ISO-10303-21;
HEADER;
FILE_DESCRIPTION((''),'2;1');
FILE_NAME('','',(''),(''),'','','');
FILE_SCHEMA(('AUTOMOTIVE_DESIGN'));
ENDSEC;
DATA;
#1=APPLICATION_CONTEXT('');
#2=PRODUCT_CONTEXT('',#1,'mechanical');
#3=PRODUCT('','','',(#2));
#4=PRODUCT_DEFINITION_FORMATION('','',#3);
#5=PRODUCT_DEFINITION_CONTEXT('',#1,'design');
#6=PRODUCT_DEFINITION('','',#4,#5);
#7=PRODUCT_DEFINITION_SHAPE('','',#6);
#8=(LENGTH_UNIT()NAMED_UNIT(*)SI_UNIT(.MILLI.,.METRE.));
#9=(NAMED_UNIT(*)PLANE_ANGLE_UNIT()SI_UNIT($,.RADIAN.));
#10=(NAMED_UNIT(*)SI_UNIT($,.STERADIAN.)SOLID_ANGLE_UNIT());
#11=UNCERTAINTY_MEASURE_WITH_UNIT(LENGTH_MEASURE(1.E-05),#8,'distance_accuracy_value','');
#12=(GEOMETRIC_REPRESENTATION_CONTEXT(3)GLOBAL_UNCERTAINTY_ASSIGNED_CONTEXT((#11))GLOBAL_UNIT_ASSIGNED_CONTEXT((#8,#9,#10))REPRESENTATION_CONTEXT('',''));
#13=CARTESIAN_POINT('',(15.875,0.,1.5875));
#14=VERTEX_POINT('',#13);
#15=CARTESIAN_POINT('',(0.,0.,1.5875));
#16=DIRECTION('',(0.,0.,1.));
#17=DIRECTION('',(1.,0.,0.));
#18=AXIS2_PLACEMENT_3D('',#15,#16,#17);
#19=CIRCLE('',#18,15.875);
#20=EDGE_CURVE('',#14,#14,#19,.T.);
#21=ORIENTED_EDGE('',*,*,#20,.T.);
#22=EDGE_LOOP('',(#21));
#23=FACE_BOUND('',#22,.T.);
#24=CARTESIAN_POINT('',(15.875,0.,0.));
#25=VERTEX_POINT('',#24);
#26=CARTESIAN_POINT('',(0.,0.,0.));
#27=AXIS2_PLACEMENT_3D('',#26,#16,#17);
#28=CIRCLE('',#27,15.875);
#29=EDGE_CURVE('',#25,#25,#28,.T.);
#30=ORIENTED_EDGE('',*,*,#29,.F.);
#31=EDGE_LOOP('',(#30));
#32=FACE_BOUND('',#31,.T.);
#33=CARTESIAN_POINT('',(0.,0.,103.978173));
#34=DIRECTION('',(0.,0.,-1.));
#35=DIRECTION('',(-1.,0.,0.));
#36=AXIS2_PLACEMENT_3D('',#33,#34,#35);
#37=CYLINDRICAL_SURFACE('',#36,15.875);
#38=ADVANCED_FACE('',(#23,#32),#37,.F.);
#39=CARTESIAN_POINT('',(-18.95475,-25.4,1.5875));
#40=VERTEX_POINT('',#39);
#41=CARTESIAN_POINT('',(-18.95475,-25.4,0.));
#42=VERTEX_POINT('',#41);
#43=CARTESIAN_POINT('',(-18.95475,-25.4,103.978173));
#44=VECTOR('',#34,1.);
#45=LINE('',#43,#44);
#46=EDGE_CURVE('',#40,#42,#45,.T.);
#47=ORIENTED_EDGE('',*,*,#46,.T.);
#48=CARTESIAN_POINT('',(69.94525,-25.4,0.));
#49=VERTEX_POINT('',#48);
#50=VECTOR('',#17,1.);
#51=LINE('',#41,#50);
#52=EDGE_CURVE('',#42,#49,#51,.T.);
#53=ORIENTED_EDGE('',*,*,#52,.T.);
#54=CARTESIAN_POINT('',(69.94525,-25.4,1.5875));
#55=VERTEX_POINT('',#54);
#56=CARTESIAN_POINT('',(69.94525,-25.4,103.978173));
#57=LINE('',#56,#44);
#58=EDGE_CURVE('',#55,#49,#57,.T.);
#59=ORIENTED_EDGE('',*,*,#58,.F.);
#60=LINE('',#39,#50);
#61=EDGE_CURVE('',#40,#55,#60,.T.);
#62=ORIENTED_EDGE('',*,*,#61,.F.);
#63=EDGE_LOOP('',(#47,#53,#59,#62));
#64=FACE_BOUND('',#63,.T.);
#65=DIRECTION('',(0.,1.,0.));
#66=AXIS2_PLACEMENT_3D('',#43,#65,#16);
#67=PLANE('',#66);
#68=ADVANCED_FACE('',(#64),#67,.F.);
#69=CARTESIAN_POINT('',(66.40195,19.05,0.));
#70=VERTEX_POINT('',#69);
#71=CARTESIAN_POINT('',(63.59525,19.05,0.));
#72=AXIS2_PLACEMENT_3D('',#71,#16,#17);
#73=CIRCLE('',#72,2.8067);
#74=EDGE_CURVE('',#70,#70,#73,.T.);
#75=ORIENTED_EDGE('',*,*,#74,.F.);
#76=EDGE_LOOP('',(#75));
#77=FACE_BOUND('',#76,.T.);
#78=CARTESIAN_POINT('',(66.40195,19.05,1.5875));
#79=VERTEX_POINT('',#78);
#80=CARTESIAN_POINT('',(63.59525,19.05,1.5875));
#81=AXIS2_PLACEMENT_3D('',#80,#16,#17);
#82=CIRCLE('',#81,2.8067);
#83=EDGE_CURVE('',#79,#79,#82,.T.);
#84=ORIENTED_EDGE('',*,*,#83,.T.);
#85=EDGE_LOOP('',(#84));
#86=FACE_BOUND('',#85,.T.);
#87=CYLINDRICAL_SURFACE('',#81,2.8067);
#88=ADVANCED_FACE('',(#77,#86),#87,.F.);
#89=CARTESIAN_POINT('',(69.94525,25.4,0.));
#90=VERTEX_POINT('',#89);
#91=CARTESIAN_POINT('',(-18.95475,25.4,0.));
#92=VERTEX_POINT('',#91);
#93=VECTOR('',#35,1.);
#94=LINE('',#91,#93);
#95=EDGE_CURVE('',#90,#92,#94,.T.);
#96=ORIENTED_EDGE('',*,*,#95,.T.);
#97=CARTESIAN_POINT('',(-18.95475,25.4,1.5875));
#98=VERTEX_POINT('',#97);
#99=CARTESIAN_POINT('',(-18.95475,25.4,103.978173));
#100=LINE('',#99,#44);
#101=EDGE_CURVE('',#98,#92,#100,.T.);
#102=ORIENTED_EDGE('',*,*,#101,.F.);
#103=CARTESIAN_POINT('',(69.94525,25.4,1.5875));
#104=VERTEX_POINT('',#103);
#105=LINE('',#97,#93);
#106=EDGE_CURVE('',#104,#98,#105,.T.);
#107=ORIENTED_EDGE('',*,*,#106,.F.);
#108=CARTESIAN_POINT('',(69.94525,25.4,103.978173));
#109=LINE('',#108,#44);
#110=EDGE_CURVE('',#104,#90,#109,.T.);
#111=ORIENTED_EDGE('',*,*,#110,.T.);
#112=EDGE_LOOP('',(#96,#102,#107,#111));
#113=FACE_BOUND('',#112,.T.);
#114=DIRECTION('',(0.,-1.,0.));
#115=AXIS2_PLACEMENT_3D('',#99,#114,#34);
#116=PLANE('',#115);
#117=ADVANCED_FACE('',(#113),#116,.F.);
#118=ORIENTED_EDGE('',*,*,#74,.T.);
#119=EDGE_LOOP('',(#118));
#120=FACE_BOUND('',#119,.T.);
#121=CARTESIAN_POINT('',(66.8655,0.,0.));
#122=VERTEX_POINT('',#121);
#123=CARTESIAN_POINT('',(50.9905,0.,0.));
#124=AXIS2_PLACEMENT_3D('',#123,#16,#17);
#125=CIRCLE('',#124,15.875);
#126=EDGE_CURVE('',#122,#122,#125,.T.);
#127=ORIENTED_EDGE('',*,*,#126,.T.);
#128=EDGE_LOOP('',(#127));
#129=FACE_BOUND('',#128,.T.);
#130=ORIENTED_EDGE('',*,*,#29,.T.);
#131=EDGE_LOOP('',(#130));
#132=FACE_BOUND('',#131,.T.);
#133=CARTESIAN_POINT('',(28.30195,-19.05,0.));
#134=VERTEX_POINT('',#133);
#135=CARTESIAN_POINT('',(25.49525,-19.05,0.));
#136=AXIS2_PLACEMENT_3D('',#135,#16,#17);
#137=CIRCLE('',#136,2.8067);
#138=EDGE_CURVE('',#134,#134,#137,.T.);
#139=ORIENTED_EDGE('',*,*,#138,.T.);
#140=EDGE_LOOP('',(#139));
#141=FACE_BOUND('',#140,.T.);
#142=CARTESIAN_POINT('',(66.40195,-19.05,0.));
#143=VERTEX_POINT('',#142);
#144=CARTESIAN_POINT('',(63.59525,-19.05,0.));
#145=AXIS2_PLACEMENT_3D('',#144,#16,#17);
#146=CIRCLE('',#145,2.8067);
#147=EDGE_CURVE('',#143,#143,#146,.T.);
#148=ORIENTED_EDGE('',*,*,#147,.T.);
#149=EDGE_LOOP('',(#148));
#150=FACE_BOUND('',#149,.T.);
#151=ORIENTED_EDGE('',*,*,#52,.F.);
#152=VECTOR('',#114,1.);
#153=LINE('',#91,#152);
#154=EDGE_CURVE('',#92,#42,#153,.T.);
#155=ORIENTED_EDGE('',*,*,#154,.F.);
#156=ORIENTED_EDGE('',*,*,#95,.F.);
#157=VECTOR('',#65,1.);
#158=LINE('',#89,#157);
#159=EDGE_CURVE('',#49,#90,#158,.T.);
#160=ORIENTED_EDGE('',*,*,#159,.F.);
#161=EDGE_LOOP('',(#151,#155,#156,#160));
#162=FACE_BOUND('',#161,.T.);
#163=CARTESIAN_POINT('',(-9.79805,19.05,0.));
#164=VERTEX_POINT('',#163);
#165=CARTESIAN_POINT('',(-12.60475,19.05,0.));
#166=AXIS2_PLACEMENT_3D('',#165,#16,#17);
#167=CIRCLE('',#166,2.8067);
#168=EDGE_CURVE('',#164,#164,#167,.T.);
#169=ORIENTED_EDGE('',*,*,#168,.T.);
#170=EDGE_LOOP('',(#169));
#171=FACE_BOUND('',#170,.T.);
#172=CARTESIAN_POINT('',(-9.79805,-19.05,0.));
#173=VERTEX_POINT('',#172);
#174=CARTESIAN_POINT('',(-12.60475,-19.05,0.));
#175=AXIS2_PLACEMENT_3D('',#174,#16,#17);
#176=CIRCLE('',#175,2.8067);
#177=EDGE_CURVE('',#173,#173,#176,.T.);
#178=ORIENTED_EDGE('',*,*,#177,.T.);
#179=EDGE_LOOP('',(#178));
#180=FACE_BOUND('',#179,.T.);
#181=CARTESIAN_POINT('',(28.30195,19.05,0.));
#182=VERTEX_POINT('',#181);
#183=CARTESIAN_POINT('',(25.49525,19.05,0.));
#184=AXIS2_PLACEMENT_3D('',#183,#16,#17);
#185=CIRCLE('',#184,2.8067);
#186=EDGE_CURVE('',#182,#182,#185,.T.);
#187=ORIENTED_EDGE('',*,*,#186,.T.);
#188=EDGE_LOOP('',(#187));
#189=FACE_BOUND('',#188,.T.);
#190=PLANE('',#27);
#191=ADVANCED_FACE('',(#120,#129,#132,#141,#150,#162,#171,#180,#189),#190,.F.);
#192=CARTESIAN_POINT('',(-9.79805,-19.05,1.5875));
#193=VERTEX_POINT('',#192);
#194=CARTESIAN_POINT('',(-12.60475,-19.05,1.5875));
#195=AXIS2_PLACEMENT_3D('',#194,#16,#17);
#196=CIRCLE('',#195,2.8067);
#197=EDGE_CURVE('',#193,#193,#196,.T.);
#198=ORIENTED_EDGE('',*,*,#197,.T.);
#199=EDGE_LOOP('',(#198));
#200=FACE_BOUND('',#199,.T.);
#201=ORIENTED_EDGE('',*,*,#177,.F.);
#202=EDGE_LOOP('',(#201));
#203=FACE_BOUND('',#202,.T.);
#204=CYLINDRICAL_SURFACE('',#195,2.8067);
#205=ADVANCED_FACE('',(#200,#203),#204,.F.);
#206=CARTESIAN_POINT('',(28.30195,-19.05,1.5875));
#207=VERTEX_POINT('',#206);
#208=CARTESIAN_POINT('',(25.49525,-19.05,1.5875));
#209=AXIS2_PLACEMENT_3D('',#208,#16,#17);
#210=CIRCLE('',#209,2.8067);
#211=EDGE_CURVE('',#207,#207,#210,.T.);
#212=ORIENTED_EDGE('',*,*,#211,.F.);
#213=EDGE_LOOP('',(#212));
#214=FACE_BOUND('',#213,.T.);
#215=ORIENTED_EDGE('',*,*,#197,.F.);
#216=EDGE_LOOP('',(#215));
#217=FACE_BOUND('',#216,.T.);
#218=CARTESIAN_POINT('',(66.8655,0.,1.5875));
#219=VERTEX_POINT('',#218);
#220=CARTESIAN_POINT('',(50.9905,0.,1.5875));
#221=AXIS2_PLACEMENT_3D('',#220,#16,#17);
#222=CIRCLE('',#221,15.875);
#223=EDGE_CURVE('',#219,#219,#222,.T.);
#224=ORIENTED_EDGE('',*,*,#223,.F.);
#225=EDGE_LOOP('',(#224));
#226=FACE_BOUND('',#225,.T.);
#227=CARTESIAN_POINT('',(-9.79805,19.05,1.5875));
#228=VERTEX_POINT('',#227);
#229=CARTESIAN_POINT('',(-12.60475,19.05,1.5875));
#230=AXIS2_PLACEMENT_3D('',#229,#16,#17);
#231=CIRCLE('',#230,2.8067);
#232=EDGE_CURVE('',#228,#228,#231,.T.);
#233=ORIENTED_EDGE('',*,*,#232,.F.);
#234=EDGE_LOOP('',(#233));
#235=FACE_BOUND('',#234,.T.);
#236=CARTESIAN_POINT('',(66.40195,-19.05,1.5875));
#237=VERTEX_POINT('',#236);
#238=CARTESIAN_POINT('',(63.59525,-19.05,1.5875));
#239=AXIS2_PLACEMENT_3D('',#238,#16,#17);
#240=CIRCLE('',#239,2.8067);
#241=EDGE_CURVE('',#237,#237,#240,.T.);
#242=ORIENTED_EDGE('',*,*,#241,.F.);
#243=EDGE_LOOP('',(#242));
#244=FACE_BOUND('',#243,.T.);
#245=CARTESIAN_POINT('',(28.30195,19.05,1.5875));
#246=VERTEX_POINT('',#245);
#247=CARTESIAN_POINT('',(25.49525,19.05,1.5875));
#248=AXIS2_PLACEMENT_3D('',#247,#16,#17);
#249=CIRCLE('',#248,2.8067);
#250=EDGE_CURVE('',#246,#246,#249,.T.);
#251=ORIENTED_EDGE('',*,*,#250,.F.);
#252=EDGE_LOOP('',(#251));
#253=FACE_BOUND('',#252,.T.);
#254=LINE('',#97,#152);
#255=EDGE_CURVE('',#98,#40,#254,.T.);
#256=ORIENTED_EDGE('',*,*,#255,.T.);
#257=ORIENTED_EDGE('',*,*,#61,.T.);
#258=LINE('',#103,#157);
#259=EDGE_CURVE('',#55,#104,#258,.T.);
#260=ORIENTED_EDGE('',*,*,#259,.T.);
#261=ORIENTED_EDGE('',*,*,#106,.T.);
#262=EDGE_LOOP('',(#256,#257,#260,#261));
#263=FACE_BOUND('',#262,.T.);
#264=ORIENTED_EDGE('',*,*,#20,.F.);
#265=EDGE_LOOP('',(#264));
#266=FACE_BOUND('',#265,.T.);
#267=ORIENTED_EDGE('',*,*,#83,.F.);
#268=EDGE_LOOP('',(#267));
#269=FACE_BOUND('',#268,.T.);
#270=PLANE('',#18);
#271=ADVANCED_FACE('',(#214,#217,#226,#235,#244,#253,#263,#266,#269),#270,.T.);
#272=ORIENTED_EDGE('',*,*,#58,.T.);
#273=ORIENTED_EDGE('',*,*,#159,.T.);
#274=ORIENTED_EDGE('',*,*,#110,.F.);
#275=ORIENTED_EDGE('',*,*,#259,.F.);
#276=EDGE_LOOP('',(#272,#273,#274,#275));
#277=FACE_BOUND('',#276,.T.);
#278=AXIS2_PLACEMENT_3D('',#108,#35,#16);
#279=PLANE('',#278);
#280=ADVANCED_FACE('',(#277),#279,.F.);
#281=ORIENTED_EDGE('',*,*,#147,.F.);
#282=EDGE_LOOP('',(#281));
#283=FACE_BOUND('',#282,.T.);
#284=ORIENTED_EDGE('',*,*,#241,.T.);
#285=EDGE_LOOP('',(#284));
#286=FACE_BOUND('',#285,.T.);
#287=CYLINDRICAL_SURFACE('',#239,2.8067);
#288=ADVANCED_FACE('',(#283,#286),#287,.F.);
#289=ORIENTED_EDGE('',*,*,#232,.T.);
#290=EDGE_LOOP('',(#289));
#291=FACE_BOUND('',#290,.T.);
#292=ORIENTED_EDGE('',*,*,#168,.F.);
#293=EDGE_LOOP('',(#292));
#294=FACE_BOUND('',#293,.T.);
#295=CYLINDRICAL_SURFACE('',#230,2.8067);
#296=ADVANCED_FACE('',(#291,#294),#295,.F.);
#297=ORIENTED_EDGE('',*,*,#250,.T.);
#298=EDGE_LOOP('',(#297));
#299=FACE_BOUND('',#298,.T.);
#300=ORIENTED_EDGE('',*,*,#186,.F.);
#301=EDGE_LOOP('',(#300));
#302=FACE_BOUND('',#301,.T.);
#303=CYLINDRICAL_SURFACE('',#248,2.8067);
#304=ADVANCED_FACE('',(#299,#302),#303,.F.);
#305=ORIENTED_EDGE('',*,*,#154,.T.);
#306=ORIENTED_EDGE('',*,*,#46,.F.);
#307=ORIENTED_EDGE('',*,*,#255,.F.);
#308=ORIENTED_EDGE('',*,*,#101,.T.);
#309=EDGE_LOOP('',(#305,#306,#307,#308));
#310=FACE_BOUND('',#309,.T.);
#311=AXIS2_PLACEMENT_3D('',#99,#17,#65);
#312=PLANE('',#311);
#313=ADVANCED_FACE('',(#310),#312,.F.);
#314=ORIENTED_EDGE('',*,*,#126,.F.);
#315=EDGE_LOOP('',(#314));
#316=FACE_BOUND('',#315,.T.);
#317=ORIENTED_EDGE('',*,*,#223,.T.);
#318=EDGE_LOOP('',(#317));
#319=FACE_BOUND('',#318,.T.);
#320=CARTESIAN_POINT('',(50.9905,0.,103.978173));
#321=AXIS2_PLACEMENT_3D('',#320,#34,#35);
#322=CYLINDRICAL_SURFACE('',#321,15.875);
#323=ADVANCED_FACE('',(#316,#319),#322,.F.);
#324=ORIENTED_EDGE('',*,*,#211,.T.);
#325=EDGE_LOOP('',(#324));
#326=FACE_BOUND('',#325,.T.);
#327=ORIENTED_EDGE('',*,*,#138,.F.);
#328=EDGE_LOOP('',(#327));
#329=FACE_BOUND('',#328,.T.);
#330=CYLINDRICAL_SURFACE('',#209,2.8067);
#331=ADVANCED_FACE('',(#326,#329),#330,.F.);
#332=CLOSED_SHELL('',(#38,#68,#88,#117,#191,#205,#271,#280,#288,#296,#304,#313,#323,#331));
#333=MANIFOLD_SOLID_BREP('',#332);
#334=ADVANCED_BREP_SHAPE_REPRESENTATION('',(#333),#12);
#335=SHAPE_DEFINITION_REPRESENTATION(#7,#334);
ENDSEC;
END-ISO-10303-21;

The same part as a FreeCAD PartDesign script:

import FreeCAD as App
import Part
import Sketcher

V = App.Vector
Q = App.Units.Quantity


def add_polygon(sketch, points):
    """Adds a closed chain of lines whose ends are joined by coincident constraints."""
    first, n = sketch.GeometryCount, len(points)
    for a, b in zip(points, points[1:] + points[:1]):
        sketch.addGeometry(Part.LineSegment(App.Vector(*a, 0), App.Vector(*b, 0)), False)
    for i in range(n):
        sketch.addConstraint(Sketcher.Constraint("Coincident", first + i, 2, first + (i + 1) % n, 1))

doc = App.newDocument("Part")
body = doc.addObject("PartDesign::Body", "Body")

# Sketch on XY plane
sketch1 = body.newObject("Sketcher::SketchObject", "Sketch")
sketch1.AttachmentSupport = (doc.getObject("XY_Plane"), [""])
sketch1.MapMode = "FlatFace"
add_polygon(sketch1, [(-19, 25), (-19, -25), (70, -25), (70, 25)])  # lines 0-3
sketch1.addGeometry(Part.Circle(V(0, 0, 0), V(0, 0, 1), 16), False)  # 4
sketch1.addGeometry(Part.Circle(V(51, 0, 0), V(0, 0, 1), 16), False)  # 5
sketch1.addConstraint([
    Sketcher.Constraint("Vertical", 0),
    Sketcher.Constraint("Horizontal", 1),
    Sketcher.Constraint("Vertical", 2),
    Sketcher.Constraint("Horizontal", 3),
    Sketcher.Constraint("Coincident", 4, 3, -1, 1),
    Sketcher.Constraint("Equal", 4, 5),
    Sketcher.Constraint("PointOnObject", 5, 3, -1),
    Sketcher.Constraint("Diameter", 4, Q("1.25 in")),
    Sketcher.Constraint("DistanceY", 0, 2, 0, 1, Q("2 in")),
    Sketcher.Constraint("DistanceX", 1, 1, 1, 2, Q("3.5 in")),
    Sketcher.Constraint("DistanceY", 0, 2, -1, 1, Q("1 in")),
    Sketcher.Constraint("DistanceX", -1, 1, 5, 3, Q("2.0075 in")),
    Sketcher.Constraint("DistanceX", 0, 2, -1, 1, Q("18.95475 mm")),
])
pad1 = body.newObject("PartDesign::Pad", "Pad")
pad1.Profile = sketch1
pad1.Length = Q("0.0625 in")

# Sketch on XY plane
sketch2 = body.newObject("Sketcher::SketchObject", "Sketch001")
sketch2.AttachmentSupport = (doc.getObject("XY_Plane"), [""])
sketch2.MapMode = "FlatFace"
sketch2.AttachmentOffset = App.Placement(V(0, 0, 0.0625 * 25.4), App.Rotation())
sketch2.addGeometry([
    Part.Circle(V(63.6, 19.1, 0), V(0, 0, 1), 2.8),  # 0
    Part.Circle(V(-12.6, 19.1, 0), V(0, 0, 1), 2.8),  # 1
    Part.Circle(V(25.5, -19.1, 0), V(0, 0, 1), 2.8),  # 2
    Part.Circle(V(-12.6, -19.1, 0), V(0, 0, 1), 2.8),  # 3
    Part.Circle(V(25.5, 19.1, 0), V(0, 0, 1), 2.8),  # 4
    Part.Circle(V(63.6, -19.1, 0), V(0, 0, 1), 2.8),  # 5
], False)
sketch2.addConstraint([
    Sketcher.Constraint("Equal", 0, 1),
    Sketcher.Constraint("Equal", 1, 2),
    Sketcher.Constraint("Equal", 2, 3),
    Sketcher.Constraint("Equal", 3, 4),
    Sketcher.Constraint("Equal", 4, 5),
    Sketcher.Constraint("Symmetric", 1, 3, 3, 3, -1),
    Sketcher.Constraint("Symmetric", 2, 3, 4, 3, -1),
    Sketcher.Constraint("Symmetric", 0, 3, 5, 3, -1),
    Sketcher.Constraint("Horizontal", 0, 3, 1, 3),
    Sketcher.Constraint("Horizontal", 2, 3, 3, 3),
    Sketcher.Constraint("Diameter", 0, Q("0.221 in")),
    Sketcher.Constraint("DistanceX", 1, 3, 0, 3, Q("3 in")),
    Sketcher.Constraint("DistanceX", 2, 3, 0, 3, Q("1.5 in")),
    Sketcher.Constraint("DistanceY", 2, 3, 0, 3, Q("1.5 in")),
    Sketcher.Constraint("DistanceX", -1, 1, 0, 3, Q("63.59525 mm")),
])
doc.recompute()
hole = body.newObject("PartDesign::Hole", "Hole")
hole.Profile = sketch2
hole.ThreadType = "None"
hole.Diameter = Q("0.221 in")
hole.DepthType = "ThroughAll"

doc.recompute()
